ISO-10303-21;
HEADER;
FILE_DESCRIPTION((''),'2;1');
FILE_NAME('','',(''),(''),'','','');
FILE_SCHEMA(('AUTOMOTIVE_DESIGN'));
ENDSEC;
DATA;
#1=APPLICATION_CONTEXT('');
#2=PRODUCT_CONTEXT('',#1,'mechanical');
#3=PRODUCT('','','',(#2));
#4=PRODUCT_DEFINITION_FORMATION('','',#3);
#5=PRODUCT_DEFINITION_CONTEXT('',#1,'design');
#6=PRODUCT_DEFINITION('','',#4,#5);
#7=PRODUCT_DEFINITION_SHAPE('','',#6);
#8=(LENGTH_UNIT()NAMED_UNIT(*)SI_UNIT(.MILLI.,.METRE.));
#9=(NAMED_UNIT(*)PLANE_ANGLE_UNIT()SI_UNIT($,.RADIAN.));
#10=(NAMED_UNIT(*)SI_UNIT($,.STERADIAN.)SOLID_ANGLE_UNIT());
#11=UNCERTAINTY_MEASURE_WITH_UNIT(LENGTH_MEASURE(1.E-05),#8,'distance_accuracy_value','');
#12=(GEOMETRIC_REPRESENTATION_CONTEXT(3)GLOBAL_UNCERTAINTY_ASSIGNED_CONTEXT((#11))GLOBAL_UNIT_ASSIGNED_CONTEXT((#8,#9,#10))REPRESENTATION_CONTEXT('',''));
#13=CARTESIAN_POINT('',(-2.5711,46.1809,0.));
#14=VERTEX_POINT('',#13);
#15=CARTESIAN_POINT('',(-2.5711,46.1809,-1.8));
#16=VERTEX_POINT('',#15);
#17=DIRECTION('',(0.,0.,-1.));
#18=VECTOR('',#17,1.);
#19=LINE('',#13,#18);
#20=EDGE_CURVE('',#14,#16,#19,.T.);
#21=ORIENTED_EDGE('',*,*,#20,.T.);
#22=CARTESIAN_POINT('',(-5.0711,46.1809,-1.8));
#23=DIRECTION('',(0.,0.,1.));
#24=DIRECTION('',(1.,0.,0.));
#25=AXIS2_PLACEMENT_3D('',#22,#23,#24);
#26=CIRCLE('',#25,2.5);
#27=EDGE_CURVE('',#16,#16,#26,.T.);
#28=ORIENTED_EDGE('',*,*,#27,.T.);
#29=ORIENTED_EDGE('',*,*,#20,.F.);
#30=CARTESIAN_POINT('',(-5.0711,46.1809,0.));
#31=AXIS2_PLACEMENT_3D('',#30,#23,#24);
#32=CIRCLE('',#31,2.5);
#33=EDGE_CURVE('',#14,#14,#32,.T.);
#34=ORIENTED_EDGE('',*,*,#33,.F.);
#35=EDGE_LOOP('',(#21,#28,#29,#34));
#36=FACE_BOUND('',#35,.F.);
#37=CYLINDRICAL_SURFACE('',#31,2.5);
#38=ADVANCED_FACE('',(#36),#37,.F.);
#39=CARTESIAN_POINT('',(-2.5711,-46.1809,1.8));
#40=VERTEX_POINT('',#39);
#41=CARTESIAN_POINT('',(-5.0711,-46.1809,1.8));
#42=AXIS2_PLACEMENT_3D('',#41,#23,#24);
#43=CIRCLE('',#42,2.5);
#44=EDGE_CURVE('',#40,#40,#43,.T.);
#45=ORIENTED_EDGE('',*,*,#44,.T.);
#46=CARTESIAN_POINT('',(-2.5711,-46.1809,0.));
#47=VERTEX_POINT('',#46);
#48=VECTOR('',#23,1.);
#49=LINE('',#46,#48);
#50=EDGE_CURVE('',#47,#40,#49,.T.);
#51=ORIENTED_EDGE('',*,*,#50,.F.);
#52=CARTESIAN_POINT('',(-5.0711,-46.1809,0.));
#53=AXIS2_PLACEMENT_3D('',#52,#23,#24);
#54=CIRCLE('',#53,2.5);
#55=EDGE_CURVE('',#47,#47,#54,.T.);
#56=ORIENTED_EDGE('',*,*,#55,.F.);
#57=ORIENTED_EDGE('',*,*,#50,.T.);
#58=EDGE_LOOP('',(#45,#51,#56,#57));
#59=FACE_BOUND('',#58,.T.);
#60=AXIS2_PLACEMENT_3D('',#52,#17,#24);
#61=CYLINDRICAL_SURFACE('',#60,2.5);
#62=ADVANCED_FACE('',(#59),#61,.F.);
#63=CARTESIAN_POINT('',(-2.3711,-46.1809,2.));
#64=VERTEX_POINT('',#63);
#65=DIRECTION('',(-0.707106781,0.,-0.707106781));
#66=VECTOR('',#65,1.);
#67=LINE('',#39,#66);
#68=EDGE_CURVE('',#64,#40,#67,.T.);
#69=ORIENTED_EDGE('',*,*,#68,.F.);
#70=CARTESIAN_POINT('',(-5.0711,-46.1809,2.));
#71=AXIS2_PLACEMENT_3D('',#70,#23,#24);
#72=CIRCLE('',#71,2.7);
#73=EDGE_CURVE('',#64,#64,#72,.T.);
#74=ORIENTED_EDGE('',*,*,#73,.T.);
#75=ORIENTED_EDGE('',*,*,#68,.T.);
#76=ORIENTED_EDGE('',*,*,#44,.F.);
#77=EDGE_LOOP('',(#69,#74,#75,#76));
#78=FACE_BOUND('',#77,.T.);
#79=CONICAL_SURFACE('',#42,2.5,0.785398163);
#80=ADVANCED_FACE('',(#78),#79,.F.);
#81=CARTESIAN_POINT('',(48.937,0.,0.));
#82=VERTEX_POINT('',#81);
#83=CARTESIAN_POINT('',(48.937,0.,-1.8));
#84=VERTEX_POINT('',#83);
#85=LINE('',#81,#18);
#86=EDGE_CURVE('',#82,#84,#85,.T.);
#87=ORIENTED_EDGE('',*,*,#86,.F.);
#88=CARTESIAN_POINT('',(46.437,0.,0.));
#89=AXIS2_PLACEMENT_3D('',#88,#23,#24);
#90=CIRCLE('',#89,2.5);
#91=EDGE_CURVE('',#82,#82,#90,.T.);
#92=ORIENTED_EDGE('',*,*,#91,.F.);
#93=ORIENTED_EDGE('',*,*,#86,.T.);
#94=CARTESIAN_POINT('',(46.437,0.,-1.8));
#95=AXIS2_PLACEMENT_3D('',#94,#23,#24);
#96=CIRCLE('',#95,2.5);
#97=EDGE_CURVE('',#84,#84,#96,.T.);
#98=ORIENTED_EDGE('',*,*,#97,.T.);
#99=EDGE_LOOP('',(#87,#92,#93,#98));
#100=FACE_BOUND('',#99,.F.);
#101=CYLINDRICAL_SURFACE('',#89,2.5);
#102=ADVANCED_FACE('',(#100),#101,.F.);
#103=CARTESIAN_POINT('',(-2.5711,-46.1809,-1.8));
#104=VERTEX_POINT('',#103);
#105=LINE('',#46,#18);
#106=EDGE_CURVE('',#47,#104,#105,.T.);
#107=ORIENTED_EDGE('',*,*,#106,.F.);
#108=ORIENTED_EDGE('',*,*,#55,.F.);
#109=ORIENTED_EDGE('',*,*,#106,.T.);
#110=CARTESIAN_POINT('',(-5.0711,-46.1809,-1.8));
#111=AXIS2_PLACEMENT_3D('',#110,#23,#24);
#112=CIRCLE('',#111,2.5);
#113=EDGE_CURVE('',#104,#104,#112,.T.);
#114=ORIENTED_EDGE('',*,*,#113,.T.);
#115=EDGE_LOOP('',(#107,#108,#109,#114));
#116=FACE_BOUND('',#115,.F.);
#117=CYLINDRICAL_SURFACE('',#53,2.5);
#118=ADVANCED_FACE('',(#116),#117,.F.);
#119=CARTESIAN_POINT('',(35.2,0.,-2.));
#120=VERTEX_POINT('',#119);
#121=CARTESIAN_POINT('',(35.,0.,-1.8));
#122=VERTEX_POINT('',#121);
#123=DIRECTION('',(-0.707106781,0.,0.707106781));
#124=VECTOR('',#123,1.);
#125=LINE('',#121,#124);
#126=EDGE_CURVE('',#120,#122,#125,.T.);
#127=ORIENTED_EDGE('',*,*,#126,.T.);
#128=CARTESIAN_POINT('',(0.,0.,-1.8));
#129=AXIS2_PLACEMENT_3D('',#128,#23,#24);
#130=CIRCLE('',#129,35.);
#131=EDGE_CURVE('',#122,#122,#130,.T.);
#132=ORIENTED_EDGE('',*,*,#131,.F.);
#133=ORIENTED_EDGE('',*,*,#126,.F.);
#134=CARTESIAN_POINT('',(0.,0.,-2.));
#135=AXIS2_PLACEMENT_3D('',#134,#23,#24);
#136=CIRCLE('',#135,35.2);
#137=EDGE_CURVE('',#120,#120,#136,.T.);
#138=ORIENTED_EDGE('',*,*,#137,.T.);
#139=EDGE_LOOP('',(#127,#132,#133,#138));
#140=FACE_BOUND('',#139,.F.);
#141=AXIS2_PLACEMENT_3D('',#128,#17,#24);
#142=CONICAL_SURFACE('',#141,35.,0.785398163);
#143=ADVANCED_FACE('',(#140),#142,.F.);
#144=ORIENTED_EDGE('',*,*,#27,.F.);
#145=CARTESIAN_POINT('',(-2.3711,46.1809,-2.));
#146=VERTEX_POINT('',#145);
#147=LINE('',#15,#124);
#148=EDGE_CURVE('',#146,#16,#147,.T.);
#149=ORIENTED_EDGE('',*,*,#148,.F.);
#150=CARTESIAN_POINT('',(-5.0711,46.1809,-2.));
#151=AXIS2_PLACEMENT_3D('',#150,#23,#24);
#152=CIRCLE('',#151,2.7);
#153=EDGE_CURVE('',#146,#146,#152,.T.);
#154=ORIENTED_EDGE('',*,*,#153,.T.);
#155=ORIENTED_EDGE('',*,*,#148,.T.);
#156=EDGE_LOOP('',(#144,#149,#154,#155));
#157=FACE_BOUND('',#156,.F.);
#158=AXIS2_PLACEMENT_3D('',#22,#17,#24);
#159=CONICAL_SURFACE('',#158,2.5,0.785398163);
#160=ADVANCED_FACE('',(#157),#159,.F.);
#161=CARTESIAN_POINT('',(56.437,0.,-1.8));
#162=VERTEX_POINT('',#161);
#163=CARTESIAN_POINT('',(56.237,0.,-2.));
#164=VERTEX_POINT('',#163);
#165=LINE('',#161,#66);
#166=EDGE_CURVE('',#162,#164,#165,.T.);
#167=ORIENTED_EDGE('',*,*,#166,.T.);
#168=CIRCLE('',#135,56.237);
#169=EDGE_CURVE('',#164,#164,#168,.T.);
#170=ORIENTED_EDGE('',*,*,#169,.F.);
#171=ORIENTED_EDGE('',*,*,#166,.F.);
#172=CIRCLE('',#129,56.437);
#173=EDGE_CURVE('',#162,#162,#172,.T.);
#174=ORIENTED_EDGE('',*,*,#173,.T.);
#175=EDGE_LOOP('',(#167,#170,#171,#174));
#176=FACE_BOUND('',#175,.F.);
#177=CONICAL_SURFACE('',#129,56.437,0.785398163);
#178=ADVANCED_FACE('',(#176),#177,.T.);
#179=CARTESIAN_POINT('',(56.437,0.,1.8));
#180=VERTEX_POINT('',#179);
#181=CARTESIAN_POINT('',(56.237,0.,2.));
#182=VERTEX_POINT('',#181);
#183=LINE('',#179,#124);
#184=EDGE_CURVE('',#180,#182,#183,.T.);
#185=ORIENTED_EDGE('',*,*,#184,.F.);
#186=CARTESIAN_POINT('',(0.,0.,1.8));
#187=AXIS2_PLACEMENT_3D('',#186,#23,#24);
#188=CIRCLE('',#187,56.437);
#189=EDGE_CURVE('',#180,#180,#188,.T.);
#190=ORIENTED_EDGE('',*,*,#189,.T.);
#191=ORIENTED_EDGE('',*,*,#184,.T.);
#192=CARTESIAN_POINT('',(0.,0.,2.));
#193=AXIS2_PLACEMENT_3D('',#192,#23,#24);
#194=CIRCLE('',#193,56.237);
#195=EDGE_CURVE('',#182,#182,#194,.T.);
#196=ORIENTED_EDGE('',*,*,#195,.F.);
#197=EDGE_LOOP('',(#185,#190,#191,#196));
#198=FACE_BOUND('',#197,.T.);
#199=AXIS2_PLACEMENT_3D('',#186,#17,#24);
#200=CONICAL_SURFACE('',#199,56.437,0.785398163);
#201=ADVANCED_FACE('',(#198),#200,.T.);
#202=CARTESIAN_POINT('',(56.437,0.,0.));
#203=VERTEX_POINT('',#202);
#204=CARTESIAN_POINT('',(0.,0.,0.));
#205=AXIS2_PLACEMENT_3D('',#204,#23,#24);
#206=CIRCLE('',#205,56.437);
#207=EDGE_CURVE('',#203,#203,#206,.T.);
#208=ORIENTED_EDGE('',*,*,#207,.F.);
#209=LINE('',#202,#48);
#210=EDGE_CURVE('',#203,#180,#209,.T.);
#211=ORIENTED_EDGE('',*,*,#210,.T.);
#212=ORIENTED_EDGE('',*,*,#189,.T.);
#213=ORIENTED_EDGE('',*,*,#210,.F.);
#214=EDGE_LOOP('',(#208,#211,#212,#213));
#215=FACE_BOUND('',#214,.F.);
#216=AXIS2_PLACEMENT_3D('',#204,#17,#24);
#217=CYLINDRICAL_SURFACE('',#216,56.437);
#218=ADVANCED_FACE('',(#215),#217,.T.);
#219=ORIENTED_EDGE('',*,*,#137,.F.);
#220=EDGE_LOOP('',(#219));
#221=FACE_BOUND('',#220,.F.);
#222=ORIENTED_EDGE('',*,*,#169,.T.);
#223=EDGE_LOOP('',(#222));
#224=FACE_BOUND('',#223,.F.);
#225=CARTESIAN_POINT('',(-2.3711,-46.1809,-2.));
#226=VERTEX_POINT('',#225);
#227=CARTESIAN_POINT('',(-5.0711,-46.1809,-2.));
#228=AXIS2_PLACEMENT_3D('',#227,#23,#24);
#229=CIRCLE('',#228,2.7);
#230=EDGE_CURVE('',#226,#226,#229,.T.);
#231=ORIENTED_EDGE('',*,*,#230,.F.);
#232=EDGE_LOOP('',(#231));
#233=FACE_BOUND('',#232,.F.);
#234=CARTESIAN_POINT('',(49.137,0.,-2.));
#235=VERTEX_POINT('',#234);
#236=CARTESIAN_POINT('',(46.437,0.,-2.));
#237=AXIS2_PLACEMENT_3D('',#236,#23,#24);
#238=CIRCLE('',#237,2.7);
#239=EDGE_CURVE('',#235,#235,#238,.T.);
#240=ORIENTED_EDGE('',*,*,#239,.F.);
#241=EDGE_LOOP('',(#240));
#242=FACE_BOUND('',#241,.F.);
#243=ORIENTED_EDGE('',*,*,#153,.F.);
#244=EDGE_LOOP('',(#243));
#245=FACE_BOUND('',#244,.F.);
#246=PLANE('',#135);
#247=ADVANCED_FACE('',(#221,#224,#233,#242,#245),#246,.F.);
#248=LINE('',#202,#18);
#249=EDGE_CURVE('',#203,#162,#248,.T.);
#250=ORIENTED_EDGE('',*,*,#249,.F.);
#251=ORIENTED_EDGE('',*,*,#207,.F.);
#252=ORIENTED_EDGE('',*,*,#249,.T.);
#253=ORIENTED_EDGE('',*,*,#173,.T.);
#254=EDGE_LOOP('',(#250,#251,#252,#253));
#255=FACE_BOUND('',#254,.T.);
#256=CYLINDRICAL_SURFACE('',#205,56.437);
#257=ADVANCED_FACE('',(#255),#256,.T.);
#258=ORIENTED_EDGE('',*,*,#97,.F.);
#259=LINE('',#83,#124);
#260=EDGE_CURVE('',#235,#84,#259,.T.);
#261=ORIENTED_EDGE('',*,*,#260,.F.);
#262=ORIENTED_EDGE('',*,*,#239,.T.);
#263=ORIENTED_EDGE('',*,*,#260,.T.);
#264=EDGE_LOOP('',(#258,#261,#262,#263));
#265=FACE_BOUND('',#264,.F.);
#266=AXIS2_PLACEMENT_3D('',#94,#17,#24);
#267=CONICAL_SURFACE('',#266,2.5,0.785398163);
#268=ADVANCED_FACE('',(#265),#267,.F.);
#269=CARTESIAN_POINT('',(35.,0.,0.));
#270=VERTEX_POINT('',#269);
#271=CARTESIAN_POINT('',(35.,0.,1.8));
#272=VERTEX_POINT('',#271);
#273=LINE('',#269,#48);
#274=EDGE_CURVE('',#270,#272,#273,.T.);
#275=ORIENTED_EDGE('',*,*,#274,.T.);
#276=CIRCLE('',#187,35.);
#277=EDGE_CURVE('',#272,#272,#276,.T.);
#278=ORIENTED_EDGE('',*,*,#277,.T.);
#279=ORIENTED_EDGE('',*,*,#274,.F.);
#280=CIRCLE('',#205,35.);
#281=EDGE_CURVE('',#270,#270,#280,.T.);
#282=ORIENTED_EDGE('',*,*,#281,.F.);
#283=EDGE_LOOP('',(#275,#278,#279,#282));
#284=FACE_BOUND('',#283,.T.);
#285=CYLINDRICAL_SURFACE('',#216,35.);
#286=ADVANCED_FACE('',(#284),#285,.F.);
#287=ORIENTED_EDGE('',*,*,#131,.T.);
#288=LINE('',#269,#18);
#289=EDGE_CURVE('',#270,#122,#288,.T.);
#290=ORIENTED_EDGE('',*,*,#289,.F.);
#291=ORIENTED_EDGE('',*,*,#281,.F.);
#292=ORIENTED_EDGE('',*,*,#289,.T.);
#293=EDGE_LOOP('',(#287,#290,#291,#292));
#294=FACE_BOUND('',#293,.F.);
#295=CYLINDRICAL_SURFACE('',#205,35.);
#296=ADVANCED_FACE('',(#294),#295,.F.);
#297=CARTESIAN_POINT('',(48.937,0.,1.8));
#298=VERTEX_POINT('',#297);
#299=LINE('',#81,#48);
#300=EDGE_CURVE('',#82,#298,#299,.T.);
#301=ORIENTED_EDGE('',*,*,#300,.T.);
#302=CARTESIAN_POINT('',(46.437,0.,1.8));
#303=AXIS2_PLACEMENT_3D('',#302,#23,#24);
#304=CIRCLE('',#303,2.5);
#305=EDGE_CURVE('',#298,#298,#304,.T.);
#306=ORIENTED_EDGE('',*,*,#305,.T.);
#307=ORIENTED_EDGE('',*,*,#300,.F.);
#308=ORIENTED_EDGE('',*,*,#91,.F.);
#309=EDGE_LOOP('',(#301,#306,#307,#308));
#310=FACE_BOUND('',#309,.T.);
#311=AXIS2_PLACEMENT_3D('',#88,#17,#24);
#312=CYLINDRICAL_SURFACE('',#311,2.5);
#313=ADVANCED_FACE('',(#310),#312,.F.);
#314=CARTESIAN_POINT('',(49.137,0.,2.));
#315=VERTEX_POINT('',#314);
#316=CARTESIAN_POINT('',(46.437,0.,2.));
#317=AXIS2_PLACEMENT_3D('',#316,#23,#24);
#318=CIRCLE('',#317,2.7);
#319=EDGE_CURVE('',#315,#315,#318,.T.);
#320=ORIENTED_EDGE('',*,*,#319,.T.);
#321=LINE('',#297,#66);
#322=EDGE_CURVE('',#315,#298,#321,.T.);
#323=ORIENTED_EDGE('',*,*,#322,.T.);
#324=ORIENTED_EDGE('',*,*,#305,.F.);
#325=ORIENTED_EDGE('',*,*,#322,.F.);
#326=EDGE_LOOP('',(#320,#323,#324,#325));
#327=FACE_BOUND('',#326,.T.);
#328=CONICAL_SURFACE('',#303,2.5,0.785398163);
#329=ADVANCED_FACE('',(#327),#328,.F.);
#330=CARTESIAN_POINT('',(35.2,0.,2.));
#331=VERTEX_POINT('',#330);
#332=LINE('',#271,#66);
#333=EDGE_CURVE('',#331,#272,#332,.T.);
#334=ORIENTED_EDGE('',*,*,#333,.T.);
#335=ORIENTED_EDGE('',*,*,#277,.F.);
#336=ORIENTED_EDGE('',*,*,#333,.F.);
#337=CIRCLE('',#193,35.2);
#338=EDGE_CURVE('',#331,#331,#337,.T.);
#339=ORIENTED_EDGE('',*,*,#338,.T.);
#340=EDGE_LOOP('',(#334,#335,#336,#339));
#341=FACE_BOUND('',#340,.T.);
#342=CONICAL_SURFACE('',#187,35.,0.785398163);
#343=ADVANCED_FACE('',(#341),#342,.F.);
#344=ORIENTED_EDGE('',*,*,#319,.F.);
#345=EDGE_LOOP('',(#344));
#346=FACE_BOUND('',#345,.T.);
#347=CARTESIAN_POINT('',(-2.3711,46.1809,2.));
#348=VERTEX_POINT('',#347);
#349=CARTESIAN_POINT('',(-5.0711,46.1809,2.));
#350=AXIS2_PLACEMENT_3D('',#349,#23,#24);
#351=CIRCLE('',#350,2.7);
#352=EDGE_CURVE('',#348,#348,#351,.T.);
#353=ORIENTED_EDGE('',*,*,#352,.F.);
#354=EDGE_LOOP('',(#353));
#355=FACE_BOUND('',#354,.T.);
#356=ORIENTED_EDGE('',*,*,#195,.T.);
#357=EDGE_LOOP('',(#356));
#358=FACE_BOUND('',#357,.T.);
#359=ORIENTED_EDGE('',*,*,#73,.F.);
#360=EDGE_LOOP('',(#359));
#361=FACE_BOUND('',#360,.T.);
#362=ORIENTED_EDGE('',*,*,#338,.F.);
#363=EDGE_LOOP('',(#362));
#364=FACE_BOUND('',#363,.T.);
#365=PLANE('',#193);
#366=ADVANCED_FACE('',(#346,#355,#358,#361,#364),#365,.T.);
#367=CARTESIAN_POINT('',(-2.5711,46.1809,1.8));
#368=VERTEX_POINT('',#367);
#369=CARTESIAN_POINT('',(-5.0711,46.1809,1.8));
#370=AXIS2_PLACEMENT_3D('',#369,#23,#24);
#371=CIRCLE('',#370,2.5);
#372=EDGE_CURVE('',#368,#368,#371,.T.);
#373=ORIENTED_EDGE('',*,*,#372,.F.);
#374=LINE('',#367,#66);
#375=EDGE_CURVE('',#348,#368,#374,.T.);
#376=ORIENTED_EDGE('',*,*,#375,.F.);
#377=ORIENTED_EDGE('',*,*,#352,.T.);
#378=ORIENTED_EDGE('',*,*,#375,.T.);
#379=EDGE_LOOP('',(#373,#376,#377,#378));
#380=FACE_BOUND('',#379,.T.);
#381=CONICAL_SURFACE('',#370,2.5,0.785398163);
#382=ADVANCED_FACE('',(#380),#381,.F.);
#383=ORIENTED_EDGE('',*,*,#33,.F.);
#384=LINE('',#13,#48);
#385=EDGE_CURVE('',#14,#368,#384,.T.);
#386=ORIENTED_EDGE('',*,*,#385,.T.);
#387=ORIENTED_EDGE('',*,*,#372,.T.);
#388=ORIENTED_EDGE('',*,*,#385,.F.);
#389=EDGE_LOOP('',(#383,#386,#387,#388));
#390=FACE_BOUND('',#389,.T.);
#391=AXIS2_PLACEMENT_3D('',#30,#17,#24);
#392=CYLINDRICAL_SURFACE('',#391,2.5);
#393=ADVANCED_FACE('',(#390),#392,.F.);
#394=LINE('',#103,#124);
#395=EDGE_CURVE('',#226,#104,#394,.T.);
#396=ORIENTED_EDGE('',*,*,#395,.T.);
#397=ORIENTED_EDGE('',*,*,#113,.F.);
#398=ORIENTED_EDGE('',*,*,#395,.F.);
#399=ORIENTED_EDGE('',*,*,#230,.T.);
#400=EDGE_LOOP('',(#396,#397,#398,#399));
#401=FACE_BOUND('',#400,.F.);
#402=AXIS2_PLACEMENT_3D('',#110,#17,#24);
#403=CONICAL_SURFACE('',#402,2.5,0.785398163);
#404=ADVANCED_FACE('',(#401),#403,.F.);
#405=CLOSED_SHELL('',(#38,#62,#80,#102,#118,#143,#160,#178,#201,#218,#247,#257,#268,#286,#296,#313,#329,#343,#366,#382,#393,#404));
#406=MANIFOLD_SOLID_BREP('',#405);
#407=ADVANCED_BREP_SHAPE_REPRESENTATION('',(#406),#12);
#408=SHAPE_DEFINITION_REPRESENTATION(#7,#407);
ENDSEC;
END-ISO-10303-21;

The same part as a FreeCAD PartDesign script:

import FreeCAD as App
import Part
import Sketcher
from FreeCAD import Vector


def edges_at(feature, points):
    """Names of the edges that pass closest to the given points."""
    edges = feature.Shape.Edges
    near = lambda p: min(range(len(edges)), key=lambda i: edges[i].distToShape(Part.Vertex(*p))[0])
    return sorted({f"Edge{near(p) + 1}" for p in points})

doc = App.newDocument("Part")
body = doc.addObject("PartDesign::Body", "Body")

sketch1 = doc.addObject("Sketcher::SketchObject", "Sketch")
body.addObject(sketch1)
sketch1.AttachmentSupport = (doc.XY_Plane, [""])
sketch1.MapMode = "FlatFace"
sketch1.addGeometry([
    Part.Circle(Vector(0, 0, 0), Vector(0, 0, 1), 56.4),
    Part.Circle(Vector(-5.1, -46.2, 0), Vector(0, 0, 1), 2.5),
    Part.Circle(Vector(-5.1, 46.2, 0), Vector(0, 0, 1), 2.5),
    Part.Circle(Vector(0, 0, 0), Vector(0, 0, 1), 35),
    Part.Circle(Vector(46.4, 0, 0), Vector(0, 0, 1), 2.5),
], False)
sketch1.addConstraint([
    Sketcher.Constraint("Coincident", 0, 3, -1, 1),
    Sketcher.Constraint("Coincident", 3, 3, -1, 1),
    Sketcher.Constraint("Equal", 1, 2),
    Sketcher.Constraint("Equal", 2, 4),
    Sketcher.Constraint("Symmetric", 1, 3, 2, 3, -1),
    Sketcher.Constraint("PointOnObject", 4, 3, -1),
    Sketcher.Constraint("Diameter", 1, 5.0),
    Sketcher.Constraint("Diameter", 3, 70.0),
    Sketcher.Constraint("Diameter", 0, 112.874),
    Sketcher.Constraint("DistanceX", 1, 3, -1, 1, 5.071),
    Sketcher.Constraint("DistanceY", 1, 3, -1, 1, 46.181),
    Sketcher.Constraint("DistanceX", -1, 1, 4, 3, 46.437),
])
pad1 = doc.addObject("PartDesign::Pad", "Pad")
body.addObject(pad1)
pad1.Profile = sketch1
pad1.Length = 4
pad1.Midplane = True
doc.recompute()

chamfer = doc.addObject("PartDesign::Chamfer", "Chamfer")
body.addObject(chamfer)
chamfer.Base = (pad1, edges_at(pad1, [
    (-56.437, 0, 2),
    (43.937, 0, 2),
    (-7.571, -46.181, 2),
    (-7.571, 46.181, 2),
    (-35, 0, 2),
    (-35, 0, -2),
    (-7.571, 46.181, -2),
    (-7.571, -46.181, -2),
    (43.937, 0, -2),
    (-56.437, 0, -2),
]))
chamfer.Size = 0.2

doc.recompute()
